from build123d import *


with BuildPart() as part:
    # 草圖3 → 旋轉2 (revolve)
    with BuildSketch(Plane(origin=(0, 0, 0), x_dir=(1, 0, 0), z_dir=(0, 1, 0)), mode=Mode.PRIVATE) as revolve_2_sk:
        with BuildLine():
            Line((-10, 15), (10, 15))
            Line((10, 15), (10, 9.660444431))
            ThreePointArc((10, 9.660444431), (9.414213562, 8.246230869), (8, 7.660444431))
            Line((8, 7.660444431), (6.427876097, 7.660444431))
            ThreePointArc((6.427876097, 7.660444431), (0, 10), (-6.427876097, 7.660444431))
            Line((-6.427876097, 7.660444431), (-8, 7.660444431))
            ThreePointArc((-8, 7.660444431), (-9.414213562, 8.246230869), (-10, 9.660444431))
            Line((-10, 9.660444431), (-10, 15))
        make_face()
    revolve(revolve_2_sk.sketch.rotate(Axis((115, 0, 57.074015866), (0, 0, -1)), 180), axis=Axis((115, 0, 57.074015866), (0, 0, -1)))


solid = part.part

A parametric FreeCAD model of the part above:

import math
import FreeCAD as App
import Part
import Sketcher
Q = App.Units.Quantity

doc = App.newDocument("Part")
body = doc.addObject("PartDesign::Body", "Body")

# Sketch on XZ plane
sketch1 = body.newObject("Sketcher::SketchObject", "Sketch")
sketch1.AttachmentSupport = (doc.getObject("XZ_Plane"), [""])
sketch1.MapMode = "FlatFace"
sketch1.addGeometry(Part.LineSegment(App.Vector(10, -15, 0), App.Vector(-10, -15, 0)), False)
sketch1.addGeometry(Part.LineSegment(App.Vector(-10, -15, 0), App.Vector(-10, -9.7, 0)), False)
sketch1.addGeometry(Part.ArcOfCircle(Part.Circle(App.Vector(-8, -9.7, 0), App.Vector(0, 0, 1), 2), math.radians(90), math.radians(180)), False)
sketch1.addGeometry(Part.LineSegment(App.Vector(-8, -7.7, 0), App.Vector(-6.4, -7.7, 0)), False)
sketch1.addGeometry(Part.ArcOfCircle(Part.Circle(App.Vector(0, 0, 0), App.Vector(0, 0, 1), 10), math.radians(-130), math.radians(-50)), False)
sketch1.addGeometry(Part.LineSegment(App.Vector(6.4, -7.7, 0), App.Vector(8, -7.7, 0)), False)
sketch1.addGeometry(Part.ArcOfCircle(Part.Circle(App.Vector(8, -9.7, 0), App.Vector(0, 0, 1), 2), math.radians(0), math.radians(90)), False)
sketch1.addGeometry(Part.LineSegment(App.Vector(10, -9.7, 0), App.Vector(10, -15, 0)), False)
sketch1.addGeometry(Part.LineSegment(App.Vector(115, 0, 0), App.Vector(115, -15, 0)), True)  # axis
sketch1.addConstraint(Sketcher.Constraint("Coincident", 0, 2, 1, 1))
sketch1.addConstraint(Sketcher.Constraint("Tangent", 1, 2, 2, 2))
sketch1.addConstraint(Sketcher.Constraint("Tangent", 2, 1, 3, 1))
sketch1.addConstraint(Sketcher.Constraint("Coincident", 3, 2, 4, 1))
sketch1.addConstraint(Sketcher.Constraint("Coincident", 4, 2, 5, 1))
sketch1.addConstraint(Sketcher.Constraint("Tangent", 5, 2, 6, 2))
sketch1.addConstraint(Sketcher.Constraint("Tangent", 6, 1, 7, 1))
sketch1.addConstraint(Sketcher.Constraint("Coincident", 7, 2, 0, 1))
sketch1.addConstraint(Sketcher.Constraint("Horizontal", 0))
sketch1.addConstraint(Sketcher.Constraint("Vertical", 1))
sketch1.addConstraint(Sketcher.Constraint("Horizontal", 3))
sketch1.addConstraint(Sketcher.Constraint("Horizontal", 5))
sketch1.addConstraint(Sketcher.Constraint("Vertical", 7))
sketch1.addConstraint(Sketcher.Constraint("Vertical", 8))
sketch1.addConstraint(Sketcher.Constraint("Coincident", 4, 3, -1, 1))
sketch1.addConstraint(Sketcher.Constraint("Equal", 2, 6))
sketch1.addConstraint(Sketcher.Constraint("Symmetric", 2, 3, 6, 3, -2))
sketch1.addConstraint(Sketcher.Constraint("PointOnObject", 8, 1, -1))
sketch1.addConstraint(Sketcher.Constraint("Horizontal", 7, 2, 8, 2))
sketch1.addConstraint(Sketcher.Constraint("Radius", 2, Q("2 mm")))
sketch1.addConstraint(Sketcher.Constraint("Radius", 4, Q("10 mm")))
sketch1.addConstraint(Sketcher.Constraint("DistanceX", 0, 2, 0, 1, Q("20 mm")))
sketch1.addConstraint(Sketcher.Constraint("DistanceY", 8, 2, 8, 1, Q("15 mm")))
sketch1.addConstraint(Sketcher.Constraint("DistanceX", -1, 1, 8, 1, Q("115 mm")))
sketch1.addConstraint(Sketcher.Constraint("DistanceX", 3, 1, 3, 2, Q("1.572124 mm")))
revolution = body.newObject("PartDesign::Revolution", "Revolution")
revolution.Profile = sketch1
revolution.ReferenceAxis = (sketch1, ["Axis0"])
revolution.Angle = 360

doc.recompute()
